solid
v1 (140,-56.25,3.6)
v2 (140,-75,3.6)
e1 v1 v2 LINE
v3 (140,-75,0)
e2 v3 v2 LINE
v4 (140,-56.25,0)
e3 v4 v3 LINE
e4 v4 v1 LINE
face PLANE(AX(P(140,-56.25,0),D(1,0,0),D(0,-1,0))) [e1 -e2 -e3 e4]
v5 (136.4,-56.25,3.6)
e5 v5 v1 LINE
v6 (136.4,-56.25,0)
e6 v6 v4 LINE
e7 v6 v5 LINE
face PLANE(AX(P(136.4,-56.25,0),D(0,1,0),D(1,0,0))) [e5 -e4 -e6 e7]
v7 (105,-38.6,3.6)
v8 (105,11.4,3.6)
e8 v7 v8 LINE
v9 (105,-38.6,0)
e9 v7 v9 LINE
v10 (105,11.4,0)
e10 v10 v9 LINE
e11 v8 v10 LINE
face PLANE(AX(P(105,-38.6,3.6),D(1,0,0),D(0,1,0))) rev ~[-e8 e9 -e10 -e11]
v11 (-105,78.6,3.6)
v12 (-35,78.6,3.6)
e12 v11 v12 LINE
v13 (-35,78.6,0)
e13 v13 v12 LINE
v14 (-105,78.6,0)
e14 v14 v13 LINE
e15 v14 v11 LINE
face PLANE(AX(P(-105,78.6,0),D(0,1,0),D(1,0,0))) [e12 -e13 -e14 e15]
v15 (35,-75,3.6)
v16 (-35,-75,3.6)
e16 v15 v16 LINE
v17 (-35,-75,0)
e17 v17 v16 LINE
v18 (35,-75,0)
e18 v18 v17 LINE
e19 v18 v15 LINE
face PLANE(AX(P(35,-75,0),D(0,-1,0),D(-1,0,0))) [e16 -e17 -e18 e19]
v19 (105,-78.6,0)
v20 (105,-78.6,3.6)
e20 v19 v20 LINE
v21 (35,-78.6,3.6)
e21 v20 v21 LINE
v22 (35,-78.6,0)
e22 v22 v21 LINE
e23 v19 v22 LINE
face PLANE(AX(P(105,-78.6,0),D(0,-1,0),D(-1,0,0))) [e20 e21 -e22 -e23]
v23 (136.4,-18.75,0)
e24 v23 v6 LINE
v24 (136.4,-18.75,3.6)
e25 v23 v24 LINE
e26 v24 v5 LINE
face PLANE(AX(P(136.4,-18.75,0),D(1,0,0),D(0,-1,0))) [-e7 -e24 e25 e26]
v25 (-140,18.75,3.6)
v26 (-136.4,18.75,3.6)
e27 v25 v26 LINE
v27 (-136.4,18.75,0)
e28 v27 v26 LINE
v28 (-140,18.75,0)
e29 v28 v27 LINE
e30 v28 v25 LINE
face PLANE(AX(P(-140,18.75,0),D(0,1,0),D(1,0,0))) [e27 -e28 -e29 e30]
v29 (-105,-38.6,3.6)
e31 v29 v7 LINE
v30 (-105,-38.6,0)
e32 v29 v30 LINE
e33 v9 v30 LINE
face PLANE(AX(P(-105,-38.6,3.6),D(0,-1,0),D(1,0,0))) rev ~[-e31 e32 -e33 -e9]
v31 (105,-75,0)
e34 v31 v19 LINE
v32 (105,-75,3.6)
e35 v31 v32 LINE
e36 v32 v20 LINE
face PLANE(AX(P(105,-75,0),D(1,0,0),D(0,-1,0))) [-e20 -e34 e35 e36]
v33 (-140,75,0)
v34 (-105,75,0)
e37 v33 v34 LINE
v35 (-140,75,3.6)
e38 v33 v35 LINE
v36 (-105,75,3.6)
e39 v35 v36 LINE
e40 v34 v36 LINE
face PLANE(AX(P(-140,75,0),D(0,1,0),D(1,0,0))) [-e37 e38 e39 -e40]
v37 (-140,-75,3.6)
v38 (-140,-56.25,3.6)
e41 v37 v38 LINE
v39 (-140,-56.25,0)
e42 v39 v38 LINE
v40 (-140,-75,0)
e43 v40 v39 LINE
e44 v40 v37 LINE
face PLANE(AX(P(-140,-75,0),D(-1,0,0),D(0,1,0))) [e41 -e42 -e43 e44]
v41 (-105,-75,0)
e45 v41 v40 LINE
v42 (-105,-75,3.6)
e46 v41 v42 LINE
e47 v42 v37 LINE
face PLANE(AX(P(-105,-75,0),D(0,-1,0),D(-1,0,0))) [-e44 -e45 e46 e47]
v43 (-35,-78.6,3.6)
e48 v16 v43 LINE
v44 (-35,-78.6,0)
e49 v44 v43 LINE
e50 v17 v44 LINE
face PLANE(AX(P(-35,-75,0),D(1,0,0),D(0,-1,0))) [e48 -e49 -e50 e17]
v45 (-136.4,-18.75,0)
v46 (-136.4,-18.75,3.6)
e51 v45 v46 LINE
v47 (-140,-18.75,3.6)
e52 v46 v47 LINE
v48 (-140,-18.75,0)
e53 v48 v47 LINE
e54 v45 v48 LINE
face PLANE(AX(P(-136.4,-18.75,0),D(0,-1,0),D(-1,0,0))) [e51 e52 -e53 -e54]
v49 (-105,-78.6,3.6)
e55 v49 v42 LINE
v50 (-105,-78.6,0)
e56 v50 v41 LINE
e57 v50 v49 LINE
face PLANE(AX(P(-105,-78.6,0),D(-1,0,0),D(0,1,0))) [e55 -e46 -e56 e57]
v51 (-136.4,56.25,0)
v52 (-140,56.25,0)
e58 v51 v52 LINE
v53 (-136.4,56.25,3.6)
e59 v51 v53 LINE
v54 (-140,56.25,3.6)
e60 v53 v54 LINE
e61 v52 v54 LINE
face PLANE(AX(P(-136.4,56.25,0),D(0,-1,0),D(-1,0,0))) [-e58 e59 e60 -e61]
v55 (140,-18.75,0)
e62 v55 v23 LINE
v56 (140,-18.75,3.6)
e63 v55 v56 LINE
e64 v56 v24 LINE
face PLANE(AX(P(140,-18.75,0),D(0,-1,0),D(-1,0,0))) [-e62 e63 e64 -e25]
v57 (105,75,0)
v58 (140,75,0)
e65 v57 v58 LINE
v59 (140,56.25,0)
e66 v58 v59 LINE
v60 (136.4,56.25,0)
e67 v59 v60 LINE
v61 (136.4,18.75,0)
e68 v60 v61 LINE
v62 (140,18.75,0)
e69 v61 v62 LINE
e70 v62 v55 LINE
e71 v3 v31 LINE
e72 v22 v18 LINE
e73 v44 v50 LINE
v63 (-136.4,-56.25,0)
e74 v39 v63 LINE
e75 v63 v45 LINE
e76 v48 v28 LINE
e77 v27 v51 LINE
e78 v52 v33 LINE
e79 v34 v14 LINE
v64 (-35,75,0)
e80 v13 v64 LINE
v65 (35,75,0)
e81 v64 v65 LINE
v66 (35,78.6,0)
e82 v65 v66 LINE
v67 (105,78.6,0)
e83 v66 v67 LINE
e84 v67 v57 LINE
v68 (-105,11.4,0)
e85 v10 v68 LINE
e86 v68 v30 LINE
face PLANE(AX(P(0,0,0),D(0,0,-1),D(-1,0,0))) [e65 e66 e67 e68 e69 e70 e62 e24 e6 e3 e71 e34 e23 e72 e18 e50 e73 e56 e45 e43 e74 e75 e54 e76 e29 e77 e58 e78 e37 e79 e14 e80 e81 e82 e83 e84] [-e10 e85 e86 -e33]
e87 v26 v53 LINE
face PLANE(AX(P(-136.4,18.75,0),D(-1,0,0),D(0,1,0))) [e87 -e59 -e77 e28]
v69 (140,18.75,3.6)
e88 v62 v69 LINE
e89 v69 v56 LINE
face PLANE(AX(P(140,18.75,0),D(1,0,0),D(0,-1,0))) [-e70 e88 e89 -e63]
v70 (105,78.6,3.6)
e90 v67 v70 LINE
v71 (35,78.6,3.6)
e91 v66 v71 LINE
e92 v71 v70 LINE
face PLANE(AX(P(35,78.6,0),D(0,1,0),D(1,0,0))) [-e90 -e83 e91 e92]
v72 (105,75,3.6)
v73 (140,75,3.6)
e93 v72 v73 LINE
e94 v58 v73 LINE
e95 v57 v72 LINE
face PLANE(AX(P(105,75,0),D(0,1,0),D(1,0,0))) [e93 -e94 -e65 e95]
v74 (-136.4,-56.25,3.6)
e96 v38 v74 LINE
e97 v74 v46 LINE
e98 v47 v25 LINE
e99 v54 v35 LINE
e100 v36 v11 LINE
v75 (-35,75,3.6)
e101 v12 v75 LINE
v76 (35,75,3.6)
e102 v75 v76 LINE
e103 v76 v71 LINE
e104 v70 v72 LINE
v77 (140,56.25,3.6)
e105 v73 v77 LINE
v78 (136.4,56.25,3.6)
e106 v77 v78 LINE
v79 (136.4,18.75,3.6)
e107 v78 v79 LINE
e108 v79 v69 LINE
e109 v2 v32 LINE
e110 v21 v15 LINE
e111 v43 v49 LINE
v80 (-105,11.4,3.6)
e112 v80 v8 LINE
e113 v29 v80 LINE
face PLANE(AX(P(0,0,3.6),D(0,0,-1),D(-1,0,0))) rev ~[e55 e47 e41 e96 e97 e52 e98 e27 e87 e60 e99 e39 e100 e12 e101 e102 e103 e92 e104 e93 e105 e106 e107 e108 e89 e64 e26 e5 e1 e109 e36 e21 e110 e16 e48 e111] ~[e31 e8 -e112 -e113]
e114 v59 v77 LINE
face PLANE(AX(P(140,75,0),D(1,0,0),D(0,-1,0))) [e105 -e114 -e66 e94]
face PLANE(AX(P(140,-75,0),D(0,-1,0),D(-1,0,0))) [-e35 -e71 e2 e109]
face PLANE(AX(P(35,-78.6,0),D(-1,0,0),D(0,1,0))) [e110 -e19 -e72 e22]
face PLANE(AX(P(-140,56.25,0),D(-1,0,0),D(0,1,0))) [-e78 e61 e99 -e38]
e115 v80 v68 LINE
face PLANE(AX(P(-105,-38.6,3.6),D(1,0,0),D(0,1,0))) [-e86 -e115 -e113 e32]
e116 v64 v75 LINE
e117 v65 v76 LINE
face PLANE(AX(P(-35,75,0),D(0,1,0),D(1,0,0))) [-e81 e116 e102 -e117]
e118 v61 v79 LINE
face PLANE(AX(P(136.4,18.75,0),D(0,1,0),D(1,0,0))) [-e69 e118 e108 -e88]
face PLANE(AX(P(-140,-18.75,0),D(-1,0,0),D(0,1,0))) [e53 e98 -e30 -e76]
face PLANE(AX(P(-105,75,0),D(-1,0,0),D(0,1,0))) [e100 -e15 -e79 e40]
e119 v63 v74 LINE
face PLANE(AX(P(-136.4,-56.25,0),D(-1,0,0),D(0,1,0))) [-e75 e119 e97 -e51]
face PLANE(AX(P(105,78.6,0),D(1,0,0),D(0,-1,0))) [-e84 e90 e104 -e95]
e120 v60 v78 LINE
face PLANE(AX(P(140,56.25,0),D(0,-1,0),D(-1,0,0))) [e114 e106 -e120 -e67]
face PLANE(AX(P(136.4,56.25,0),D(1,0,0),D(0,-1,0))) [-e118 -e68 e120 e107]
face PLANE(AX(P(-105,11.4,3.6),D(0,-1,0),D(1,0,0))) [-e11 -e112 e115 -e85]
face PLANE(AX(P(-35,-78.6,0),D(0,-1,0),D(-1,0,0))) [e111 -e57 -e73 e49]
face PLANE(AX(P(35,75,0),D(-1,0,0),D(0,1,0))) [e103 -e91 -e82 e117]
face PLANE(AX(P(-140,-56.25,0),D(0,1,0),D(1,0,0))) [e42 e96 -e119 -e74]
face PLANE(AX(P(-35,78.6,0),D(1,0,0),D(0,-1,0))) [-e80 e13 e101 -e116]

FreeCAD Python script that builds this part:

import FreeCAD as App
import Part
import Sketcher
from FreeCAD import Vector

doc = App.newDocument("Part")
body = doc.addObject("PartDesign::Body", "Body")

# Sketch on XY plane
sketch1 = doc.addObject("Sketcher::SketchObject", "Sketch")
body.addObject(sketch1)
sketch1.AttachmentSupport = (doc.XY_Plane, [""])
sketch1.MapMode = "FlatFace"
sketch1.addGeometry([
    Part.LineSegment(Vector(105, -75, 0), Vector(140, -75, 0)),  # 0
    Part.LineSegment(Vector(140, -75, 0), Vector(140, -56.25, 0)),  # 1
    Part.LineSegment(Vector(140, -56.25, 0), Vector(136.4, -56.25, 0)),  # 2
    Part.LineSegment(Vector(136.4, -56.25, 0), Vector(136.4, -18.75, 0)),  # 3
    Part.LineSegment(Vector(136.4, -18.75, 0), Vector(140, -18.75, 0)),  # 4
    Part.LineSegment(Vector(140, -18.75, 0), Vector(140, 18.75, 0)),  # 5
    Part.LineSegment(Vector(140, 18.75, 0), Vector(136.4, 18.75, 0)),  # 6
    Part.LineSegment(Vector(136.4, 18.75, 0), Vector(136.4, 56.25, 0)),  # 7
    Part.LineSegment(Vector(136.4, 56.25, 0), Vector(140, 56.25, 0)),  # 8
    Part.LineSegment(Vector(140, 56.25, 0), Vector(140, 75, 0)),  # 9
    Part.LineSegment(Vector(140, 75, 0), Vector(105, 75, 0)),  # 10
    Part.LineSegment(Vector(105, 75, 0), Vector(105, 78.6, 0)),  # 11
    Part.LineSegment(Vector(105, 78.6, 0), Vector(35, 78.6, 0)),  # 12
    Part.LineSegment(Vector(35, 78.6, 0), Vector(35, 75, 0)),  # 13
    Part.LineSegment(Vector(35, 75, 0), Vector(-35, 75, 0)),  # 14
    Part.LineSegment(Vector(-35, 75, 0), Vector(-35, 78.6, 0)),  # 15
    Part.LineSegment(Vector(-35, 78.6, 0), Vector(-105, 78.6, 0)),  # 16
    Part.LineSegment(Vector(-105, 78.6, 0), Vector(-105, 75, 0)),  # 17
    Part.LineSegment(Vector(-105, 75, 0), Vector(-140, 75, 0)),  # 18
    Part.LineSegment(Vector(-140, 75, 0), Vector(-140, 56.25, 0)),  # 19
    Part.LineSegment(Vector(-140, 56.25, 0), Vector(-136.4, 56.25, 0)),  # 20
    Part.LineSegment(Vector(-136.4, 56.25, 0), Vector(-136.4, 18.75, 0)),  # 21
    Part.LineSegment(Vector(-136.4, 18.75, 0), Vector(-140, 18.75, 0)),  # 22
    Part.LineSegment(Vector(-140, 18.75, 0), Vector(-140, -18.75, 0)),  # 23
    Part.LineSegment(Vector(-140, -18.75, 0), Vector(-136.4, -18.75, 0)),  # 24
    Part.LineSegment(Vector(-136.4, -18.75, 0), Vector(-136.4, -56.25, 0)),  # 25
    Part.LineSegment(Vector(-136.4, -56.25, 0), Vector(-140, -56.25, 0)),  # 26
    Part.LineSegment(Vector(-140, -56.25, 0), Vector(-140, -75, 0)),  # 27
    Part.LineSegment(Vector(-140, -75, 0), Vector(-105, -75, 0)),  # 28
    Part.LineSegment(Vector(-105, -75, 0), Vector(-105, -78.6, 0)),  # 29
    Part.LineSegment(Vector(-105, -78.6, 0), Vector(-35, -78.6, 0)),  # 30
    Part.LineSegment(Vector(-35, -78.6, 0), Vector(-35, -75, 0)),  # 31
    Part.LineSegment(Vector(-35, -75, 0), Vector(35, -75, 0)),  # 32
    Part.LineSegment(Vector(35, -75, 0), Vector(35, -78.6, 0)),  # 33
    Part.LineSegment(Vector(35, -78.6, 0), Vector(105, -78.6, 0)),  # 34
    Part.LineSegment(Vector(105, -78.6, 0), Vector(105, -75, 0)),  # 35
], False)
sketch1.addConstraint([
    Sketcher.Constraint("Coincident", 0, 2, 1, 1),
    Sketcher.Constraint("Coincident", 1, 2, 2, 1),
    Sketcher.Constraint("Coincident", 2, 2, 3, 1),
    Sketcher.Constraint("Coincident", 3, 2, 4, 1),
    Sketcher.Constraint("Coincident", 4, 2, 5, 1),
    Sketcher.Constraint("Coincident", 5, 2, 6, 1),
    Sketcher.Constraint("Coincident", 6, 2, 7, 1),
    Sketcher.Constraint("Coincident", 7, 2, 8, 1),
    Sketcher.Constraint("Coincident", 8, 2, 9, 1),
    Sketcher.Constraint("Coincident", 9, 2, 10, 1),
    Sketcher.Constraint("Coincident", 10, 2, 11, 1),
    Sketcher.Constraint("Coincident", 11, 2, 12, 1),
    Sketcher.Constraint("Coincident", 12, 2, 13, 1),
    Sketcher.Constraint("Coincident", 13, 2, 14, 1),
    Sketcher.Constraint("Coincident", 14, 2, 15, 1),
    Sketcher.Constraint("Coincident", 15, 2, 16, 1),
    Sketcher.Constraint("Coincident", 16, 2, 17, 1),
    Sketcher.Constraint("Coincident", 17, 2, 18, 1),
    Sketcher.Constraint("Coincident", 18, 2, 19, 1),
    Sketcher.Constraint("Coincident", 19, 2, 20, 1),
    Sketcher.Constraint("Coincident", 20, 2, 21, 1),
    Sketcher.Constraint("Coincident", 21, 2, 22, 1),
    Sketcher.Constraint("Coincident", 22, 2, 23, 1),
    Sketcher.Constraint("Coincident", 23, 2, 24, 1),
    Sketcher.Constraint("Coincident", 24, 2, 25, 1),
    Sketcher.Constraint("Coincident", 25, 2, 26, 1),
    Sketcher.Constraint("Coincident", 26, 2, 27, 1),
    Sketcher.Constraint("Coincident", 27, 2, 28, 1),
    Sketcher.Constraint("Coincident", 28, 2, 29, 1),
    Sketcher.Constraint("Coincident", 29, 2, 30, 1),
    Sketcher.Constraint("Coincident", 30, 2, 31, 1),
    Sketcher.Constraint("Coincident", 31, 2, 32, 1),
    Sketcher.Constraint("Coincident", 32, 2, 33, 1),
    Sketcher.Constraint("Coincident", 33, 2, 34, 1),
    Sketcher.Constraint("Coincident", 34, 2, 35, 1),
    Sketcher.Constraint("Coincident", 35, 2, 0, 1),
    Sketcher.Constraint("Horizontal", 0),
    Sketcher.Constraint("Vertical", 1),
    Sketcher.Constraint("Horizontal", 2),
    Sketcher.Constraint("Vertical", 3),
    Sketcher.Constraint("Horizontal", 4),
    Sketcher.Constraint("Vertical", 5),
    Sketcher.Constraint("Horizontal", 6),
    Sketcher.Constraint("Vertical", 7),
    Sketcher.Constraint("Horizontal", 8),
    Sketcher.Constraint("Vertical", 9),
    Sketcher.Constraint("Horizontal", 10),
    Sketcher.Constraint("Vertical", 11),
    Sketcher.Constraint("Horizontal", 12),
    Sketcher.Constraint("Vertical", 13),
    Sketcher.Constraint("Horizontal", 14),
    Sketcher.Constraint("Vertical", 15),
    Sketcher.Constraint("Horizontal", 16),
    Sketcher.Constraint("Vertical", 17),
    Sketcher.Constraint("Horizontal", 18),
    Sketcher.Constraint("Vertical", 19),
    Sketcher.Constraint("Horizontal", 20),
    Sketcher.Constraint("Vertical", 21),
    Sketcher.Constraint("Horizontal", 22),
    Sketcher.Constraint("Vertical", 23),
    Sketcher.Constraint("Horizontal", 24),
    Sketcher.Constraint("Vertical", 25),
    Sketcher.Constraint("Horizontal", 26),
    Sketcher.Constraint("Vertical", 27),
    Sketcher.Constraint("Horizontal", 28),
    Sketcher.Constraint("Vertical", 29),
    Sketcher.Constraint("Horizontal", 30),
    Sketcher.Constraint("Vertical", 31),
    Sketcher.Constraint("Horizontal", 32),
    Sketcher.Constraint("Vertical", 33),
    Sketcher.Constraint("Horizontal", 34),
    Sketcher.Constraint("Vertical", 35),
    Sketcher.Constraint("Symmetric", 0, 2, 18, 2, -1, 1),
    Sketcher.Constraint("Symmetric", 2, 2, 20, 2, -1, 1),
    Sketcher.Constraint("Symmetric", 4, 2, 22, 2, -1, 1),
    Sketcher.Constraint("Symmetric", 6, 2, 24, 2, -1, 1),
    Sketcher.Constraint("Symmetric", 8, 2, 26, 2, -1, 1),
    Sketcher.Constraint("Symmetric", 10, 2, 28, 2, -1, 1),
    Sketcher.Constraint("Symmetric", 12, 2, 30, 2, -1, 1),
    Sketcher.Constraint("Symmetric", 14, 2, 32, 2, -1, 1),
    Sketcher.Constraint("Symmetric", 16, 2, 34, 2, -1, 1),
    Sketcher.Constraint("Symmetric", 12, 2, 15, 2, -2),
    Sketcher.Constraint("Symmetric", 10, 2, 17, 2, -2),
    Sketcher.Constraint("Symmetric", 8, 2, 19, 2, -2),
    Sketcher.Constraint("Symmetric", 6, 2, 21, 2, -2),
    Sketcher.Constraint("Horizontal", 10, 2, 13, 2),
    Sketcher.Constraint("Vertical", 1, 2, 4, 2),
    Sketcher.Constraint("Equal", 12, 14),
    Sketcher.Constraint("Equal", 3, 5),
    Sketcher.Constraint("Equal", 26, 11),
    Sketcher.Constraint("DistanceX", 0, 1, 0, 2, 35.0),
    Sketcher.Constraint("DistanceX", 12, 2, 12, 1, 70.0),
    Sketcher.Constraint("DistanceX", 2, 2, 2, 1, 3.6),
    Sketcher.Constraint("DistanceY", 3, 1, 3, 2, 37.5),
    Sketcher.Constraint("DistanceY", 0, 2, -1, 1, 75.0),
])
pad1 = doc.addObject("PartDesign::Pad", "Pad")
body.addObject(pad1)
pad1.Profile = sketch1
pad1.Length = 3.6

# Sketch on XY plane
sketch2 = doc.addObject("Sketcher::SketchObject", "Sketch001")
body.addObject(sketch2)
sketch2.AttachmentSupport = (doc.XY_Plane, [""])
sketch2.MapMode = "FlatFace"
sketch2.AttachmentOffset = App.Placement(Vector(0, 0, 3.6), App.Rotation())
sketch2.addGeometry([
    Part.LineSegment(Vector(-105, 11.4, 0), Vector(-105, -38.6, 0)),
    Part.LineSegment(Vector(-105, -38.6, 0), Vector(105, -38.6, 0)),
    Part.LineSegment(Vector(105, -38.6, 0), Vector(105, 11.4, 0)),
    Part.LineSegment(Vector(105, 11.4, 0), Vector(-105, 11.4, 0)),
], False)
sketch2.addConstraint([
    Sketcher.Constraint("Coincident", 0, 2, 1, 1),
    Sketcher.Constraint("Coincident", 1, 2, 2, 1),
    Sketcher.Constraint("Coincident", 2, 2, 3, 1),
    Sketcher.Constraint("Coincident", 3, 2, 0, 1),
    Sketcher.Constraint("Vertical", 0),
    Sketcher.Constraint("Horizontal", 1),
    Sketcher.Constraint("Vertical", 2),
    Sketcher.Constraint("Horizontal", 3),
    Sketcher.Constraint("DistanceX", 1, 1, 1, 2, 210.0),
    Sketcher.Constraint("DistanceY", 0, 2, 0, 1, 50.0),
    Sketcher.Constraint("DistanceX", 0, 2, -1, 1, 105.0),
    Sketcher.Constraint("DistanceY", 0, 2, -1, 1, 38.6),
])
pocket1 = doc.addObject("PartDesign::Pocket", "Pocket")
body.addObject(pocket1)
pocket1.Profile = sketch2
pocket1.Length = 10

doc.recompute()
